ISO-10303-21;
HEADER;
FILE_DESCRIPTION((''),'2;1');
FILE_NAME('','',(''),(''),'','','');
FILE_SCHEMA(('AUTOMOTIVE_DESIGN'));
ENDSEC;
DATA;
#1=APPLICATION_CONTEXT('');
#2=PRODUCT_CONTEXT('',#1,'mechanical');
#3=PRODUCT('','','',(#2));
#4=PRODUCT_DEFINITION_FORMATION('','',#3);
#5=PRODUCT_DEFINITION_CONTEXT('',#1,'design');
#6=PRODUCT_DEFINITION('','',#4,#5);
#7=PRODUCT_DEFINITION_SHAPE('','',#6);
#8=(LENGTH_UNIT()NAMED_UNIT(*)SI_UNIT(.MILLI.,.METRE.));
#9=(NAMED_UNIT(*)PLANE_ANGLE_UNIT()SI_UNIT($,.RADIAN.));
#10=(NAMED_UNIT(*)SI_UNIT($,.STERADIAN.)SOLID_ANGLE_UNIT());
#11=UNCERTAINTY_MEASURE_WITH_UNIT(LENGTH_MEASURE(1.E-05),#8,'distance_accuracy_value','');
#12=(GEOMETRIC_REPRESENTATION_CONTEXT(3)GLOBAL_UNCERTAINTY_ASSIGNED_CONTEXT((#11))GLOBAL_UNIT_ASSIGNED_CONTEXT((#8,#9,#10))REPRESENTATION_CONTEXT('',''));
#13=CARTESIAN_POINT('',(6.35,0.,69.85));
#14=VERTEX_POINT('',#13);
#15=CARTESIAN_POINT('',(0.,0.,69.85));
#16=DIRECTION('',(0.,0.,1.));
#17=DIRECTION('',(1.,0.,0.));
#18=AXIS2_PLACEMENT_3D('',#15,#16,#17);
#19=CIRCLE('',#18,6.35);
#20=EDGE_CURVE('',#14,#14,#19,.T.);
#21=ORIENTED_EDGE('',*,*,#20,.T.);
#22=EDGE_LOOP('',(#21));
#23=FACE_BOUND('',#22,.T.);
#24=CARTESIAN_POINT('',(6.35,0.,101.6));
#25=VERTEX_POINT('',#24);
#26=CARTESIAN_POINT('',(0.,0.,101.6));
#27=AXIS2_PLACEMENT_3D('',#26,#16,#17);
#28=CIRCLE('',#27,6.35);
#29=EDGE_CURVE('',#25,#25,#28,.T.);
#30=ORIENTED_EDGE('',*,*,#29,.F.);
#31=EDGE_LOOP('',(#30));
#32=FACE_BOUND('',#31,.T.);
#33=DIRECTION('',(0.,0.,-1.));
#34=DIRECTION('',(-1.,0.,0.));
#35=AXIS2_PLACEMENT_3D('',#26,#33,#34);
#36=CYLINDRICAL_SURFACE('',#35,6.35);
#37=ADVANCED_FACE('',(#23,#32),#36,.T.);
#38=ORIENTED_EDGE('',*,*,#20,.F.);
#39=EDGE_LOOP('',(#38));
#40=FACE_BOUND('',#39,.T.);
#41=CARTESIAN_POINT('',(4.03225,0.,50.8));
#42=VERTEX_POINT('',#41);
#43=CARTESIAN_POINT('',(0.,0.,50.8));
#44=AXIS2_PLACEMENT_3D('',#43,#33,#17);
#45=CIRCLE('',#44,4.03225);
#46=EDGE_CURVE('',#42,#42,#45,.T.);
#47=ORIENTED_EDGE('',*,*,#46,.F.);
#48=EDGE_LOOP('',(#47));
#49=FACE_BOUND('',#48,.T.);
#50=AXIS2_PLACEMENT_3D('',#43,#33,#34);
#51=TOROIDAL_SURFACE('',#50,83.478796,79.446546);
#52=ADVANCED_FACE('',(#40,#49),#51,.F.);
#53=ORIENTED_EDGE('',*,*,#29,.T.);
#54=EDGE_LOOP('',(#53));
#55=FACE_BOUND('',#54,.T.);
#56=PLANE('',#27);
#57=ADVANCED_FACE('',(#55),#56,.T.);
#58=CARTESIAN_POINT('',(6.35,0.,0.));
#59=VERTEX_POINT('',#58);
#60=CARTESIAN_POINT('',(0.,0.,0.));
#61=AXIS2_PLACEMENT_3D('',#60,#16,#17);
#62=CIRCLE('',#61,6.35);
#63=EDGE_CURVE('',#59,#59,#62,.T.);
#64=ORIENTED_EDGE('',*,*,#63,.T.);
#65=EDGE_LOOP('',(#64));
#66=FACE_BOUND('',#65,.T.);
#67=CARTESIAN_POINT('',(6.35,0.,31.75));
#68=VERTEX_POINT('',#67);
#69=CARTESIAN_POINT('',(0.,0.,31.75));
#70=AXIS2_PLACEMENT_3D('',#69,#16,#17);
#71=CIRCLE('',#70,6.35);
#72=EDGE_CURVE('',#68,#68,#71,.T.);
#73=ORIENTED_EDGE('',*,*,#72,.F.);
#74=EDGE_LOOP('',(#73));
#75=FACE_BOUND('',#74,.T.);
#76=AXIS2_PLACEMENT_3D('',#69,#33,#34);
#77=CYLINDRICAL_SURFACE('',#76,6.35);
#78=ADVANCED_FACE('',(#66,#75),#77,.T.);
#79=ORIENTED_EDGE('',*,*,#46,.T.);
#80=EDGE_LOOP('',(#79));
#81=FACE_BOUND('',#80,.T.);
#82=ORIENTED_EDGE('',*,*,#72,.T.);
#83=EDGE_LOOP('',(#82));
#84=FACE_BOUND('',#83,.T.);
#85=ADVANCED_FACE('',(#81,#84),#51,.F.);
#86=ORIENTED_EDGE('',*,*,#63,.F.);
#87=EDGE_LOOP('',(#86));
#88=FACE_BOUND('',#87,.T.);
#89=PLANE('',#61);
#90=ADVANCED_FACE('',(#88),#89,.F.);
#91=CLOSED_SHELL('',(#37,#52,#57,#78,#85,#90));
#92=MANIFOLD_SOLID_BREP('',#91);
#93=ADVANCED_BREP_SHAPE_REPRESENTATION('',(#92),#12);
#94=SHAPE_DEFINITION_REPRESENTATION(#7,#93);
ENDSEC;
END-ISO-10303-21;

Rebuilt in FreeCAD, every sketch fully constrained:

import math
import FreeCAD as App
import Part
import Sketcher

V = App.Vector
Q = App.Units.Quantity

doc = App.newDocument("Part")
body = doc.addObject("PartDesign::Body", "Body")

# Sketch on XY plane
sketch1 = body.newObject("Sketcher::SketchObject", "Sketch")
sketch1.AttachmentSupport = (doc.getObject("XY_Plane"), [""])
sketch1.MapMode = "FlatFace"
sketch1.addGeometry(Part.Circle(V(0, 0, 0), V(0, 0, 1), 6), False)
sketch1.addConstraint([
    Sketcher.Constraint("Coincident", 0, 3, -1, 1),
    Sketcher.Constraint("Diameter", 0, Q("0.5 in")),
])
pad1 = body.newObject("PartDesign::Pad", "Pad")
pad1.Profile = sketch1
pad1.Length = Q("1.25 in")

# Sketch on YZ plane
sketch2 = body.newObject("Sketcher::SketchObject", "Sketch001")
sketch2.AttachmentSupport = (doc.getObject("YZ_Plane"), [""])
sketch2.MapMode = "FlatFace"
sketch2.addGeometry([
    Part.LineSegment(V(0, 70, 0), V(0, 32, 0)),  # 0
    Part.LineSegment(V(0, 32, 0), V(6, 32, 0)),  # 1
    Part.ArcOfCircle(Part.Circle(V(83, 51, 0), V(0, 0, 1), 79), math.radians(-180), math.radians(-166.13)),  # 2
    Part.ArcOfCircle(Part.Circle(V(83, 51, 0), V(0, 0, 1), 79), math.radians(166.13), math.radians(180)),  # 3
    Part.LineSegment(V(6, 70, 0), V(0, 70, 0)),  # 4
], False)
sketch2.addConstraint([
    Sketcher.Constraint("Coincident", 0, 2, 1, 1),
    Sketcher.Constraint("Coincident", 1, 2, 2, 2),
    Sketcher.Constraint("Tangent", 2, 1, 3, 2),
    Sketcher.Constraint("Coincident", 3, 1, 4, 1),
    Sketcher.Constraint("Coincident", 4, 2, 0, 1),
    Sketcher.Constraint("Vertical", 0),
    Sketcher.Constraint("Horizontal", 1),
    Sketcher.Constraint("Horizontal", 4),
    Sketcher.Constraint("Equal", 2, 3),
    Sketcher.Constraint("PointOnObject", 0, 2, -2),
    Sketcher.Constraint("Horizontal", 3, 3, 2, 1),
    Sketcher.Constraint("Vertical", 1, 2, 3, 1),
    Sketcher.Constraint("DistanceY", 0, 2, 0, 1, Q("1.5 in")),
    Sketcher.Constraint("DistanceY", -1, 1, 2, 3, Q("2 in")),
    Sketcher.Constraint("DistanceX", 1, 1, 1, 2, Q("0.25 in")),
    Sketcher.Constraint("Radius", 2, Q("79.446546 mm")),
])
revolution = body.newObject("PartDesign::Revolution", "Revolution")
revolution.Profile = sketch2
revolution.ReferenceAxis = (sketch2, ["V_Axis"])
revolution.Angle = 360

# Sketch on XY plane
sketch3 = body.newObject("Sketcher::SketchObject", "Sketch002")
sketch3.AttachmentSupport = (doc.getObject("XY_Plane"), [""])
sketch3.MapMode = "FlatFace"
sketch3.AttachmentOffset = App.Placement(V(0, 0, 2.75 * 25.4), App.Rotation())
sketch3.addGeometry(Part.Circle(V(0, 0, 0), V(0, 0, 1), 6), False)
sketch3.addConstraint([
    Sketcher.Constraint("Coincident", 0, 3, -1, 1),
    Sketcher.Constraint("Diameter", 0, Q("0.5 in")),
])
pad2 = body.newObject("PartDesign::Pad", "Pad001")
pad2.Profile = sketch3
pad2.Length = Q("1.25 in")

doc.recompute()
